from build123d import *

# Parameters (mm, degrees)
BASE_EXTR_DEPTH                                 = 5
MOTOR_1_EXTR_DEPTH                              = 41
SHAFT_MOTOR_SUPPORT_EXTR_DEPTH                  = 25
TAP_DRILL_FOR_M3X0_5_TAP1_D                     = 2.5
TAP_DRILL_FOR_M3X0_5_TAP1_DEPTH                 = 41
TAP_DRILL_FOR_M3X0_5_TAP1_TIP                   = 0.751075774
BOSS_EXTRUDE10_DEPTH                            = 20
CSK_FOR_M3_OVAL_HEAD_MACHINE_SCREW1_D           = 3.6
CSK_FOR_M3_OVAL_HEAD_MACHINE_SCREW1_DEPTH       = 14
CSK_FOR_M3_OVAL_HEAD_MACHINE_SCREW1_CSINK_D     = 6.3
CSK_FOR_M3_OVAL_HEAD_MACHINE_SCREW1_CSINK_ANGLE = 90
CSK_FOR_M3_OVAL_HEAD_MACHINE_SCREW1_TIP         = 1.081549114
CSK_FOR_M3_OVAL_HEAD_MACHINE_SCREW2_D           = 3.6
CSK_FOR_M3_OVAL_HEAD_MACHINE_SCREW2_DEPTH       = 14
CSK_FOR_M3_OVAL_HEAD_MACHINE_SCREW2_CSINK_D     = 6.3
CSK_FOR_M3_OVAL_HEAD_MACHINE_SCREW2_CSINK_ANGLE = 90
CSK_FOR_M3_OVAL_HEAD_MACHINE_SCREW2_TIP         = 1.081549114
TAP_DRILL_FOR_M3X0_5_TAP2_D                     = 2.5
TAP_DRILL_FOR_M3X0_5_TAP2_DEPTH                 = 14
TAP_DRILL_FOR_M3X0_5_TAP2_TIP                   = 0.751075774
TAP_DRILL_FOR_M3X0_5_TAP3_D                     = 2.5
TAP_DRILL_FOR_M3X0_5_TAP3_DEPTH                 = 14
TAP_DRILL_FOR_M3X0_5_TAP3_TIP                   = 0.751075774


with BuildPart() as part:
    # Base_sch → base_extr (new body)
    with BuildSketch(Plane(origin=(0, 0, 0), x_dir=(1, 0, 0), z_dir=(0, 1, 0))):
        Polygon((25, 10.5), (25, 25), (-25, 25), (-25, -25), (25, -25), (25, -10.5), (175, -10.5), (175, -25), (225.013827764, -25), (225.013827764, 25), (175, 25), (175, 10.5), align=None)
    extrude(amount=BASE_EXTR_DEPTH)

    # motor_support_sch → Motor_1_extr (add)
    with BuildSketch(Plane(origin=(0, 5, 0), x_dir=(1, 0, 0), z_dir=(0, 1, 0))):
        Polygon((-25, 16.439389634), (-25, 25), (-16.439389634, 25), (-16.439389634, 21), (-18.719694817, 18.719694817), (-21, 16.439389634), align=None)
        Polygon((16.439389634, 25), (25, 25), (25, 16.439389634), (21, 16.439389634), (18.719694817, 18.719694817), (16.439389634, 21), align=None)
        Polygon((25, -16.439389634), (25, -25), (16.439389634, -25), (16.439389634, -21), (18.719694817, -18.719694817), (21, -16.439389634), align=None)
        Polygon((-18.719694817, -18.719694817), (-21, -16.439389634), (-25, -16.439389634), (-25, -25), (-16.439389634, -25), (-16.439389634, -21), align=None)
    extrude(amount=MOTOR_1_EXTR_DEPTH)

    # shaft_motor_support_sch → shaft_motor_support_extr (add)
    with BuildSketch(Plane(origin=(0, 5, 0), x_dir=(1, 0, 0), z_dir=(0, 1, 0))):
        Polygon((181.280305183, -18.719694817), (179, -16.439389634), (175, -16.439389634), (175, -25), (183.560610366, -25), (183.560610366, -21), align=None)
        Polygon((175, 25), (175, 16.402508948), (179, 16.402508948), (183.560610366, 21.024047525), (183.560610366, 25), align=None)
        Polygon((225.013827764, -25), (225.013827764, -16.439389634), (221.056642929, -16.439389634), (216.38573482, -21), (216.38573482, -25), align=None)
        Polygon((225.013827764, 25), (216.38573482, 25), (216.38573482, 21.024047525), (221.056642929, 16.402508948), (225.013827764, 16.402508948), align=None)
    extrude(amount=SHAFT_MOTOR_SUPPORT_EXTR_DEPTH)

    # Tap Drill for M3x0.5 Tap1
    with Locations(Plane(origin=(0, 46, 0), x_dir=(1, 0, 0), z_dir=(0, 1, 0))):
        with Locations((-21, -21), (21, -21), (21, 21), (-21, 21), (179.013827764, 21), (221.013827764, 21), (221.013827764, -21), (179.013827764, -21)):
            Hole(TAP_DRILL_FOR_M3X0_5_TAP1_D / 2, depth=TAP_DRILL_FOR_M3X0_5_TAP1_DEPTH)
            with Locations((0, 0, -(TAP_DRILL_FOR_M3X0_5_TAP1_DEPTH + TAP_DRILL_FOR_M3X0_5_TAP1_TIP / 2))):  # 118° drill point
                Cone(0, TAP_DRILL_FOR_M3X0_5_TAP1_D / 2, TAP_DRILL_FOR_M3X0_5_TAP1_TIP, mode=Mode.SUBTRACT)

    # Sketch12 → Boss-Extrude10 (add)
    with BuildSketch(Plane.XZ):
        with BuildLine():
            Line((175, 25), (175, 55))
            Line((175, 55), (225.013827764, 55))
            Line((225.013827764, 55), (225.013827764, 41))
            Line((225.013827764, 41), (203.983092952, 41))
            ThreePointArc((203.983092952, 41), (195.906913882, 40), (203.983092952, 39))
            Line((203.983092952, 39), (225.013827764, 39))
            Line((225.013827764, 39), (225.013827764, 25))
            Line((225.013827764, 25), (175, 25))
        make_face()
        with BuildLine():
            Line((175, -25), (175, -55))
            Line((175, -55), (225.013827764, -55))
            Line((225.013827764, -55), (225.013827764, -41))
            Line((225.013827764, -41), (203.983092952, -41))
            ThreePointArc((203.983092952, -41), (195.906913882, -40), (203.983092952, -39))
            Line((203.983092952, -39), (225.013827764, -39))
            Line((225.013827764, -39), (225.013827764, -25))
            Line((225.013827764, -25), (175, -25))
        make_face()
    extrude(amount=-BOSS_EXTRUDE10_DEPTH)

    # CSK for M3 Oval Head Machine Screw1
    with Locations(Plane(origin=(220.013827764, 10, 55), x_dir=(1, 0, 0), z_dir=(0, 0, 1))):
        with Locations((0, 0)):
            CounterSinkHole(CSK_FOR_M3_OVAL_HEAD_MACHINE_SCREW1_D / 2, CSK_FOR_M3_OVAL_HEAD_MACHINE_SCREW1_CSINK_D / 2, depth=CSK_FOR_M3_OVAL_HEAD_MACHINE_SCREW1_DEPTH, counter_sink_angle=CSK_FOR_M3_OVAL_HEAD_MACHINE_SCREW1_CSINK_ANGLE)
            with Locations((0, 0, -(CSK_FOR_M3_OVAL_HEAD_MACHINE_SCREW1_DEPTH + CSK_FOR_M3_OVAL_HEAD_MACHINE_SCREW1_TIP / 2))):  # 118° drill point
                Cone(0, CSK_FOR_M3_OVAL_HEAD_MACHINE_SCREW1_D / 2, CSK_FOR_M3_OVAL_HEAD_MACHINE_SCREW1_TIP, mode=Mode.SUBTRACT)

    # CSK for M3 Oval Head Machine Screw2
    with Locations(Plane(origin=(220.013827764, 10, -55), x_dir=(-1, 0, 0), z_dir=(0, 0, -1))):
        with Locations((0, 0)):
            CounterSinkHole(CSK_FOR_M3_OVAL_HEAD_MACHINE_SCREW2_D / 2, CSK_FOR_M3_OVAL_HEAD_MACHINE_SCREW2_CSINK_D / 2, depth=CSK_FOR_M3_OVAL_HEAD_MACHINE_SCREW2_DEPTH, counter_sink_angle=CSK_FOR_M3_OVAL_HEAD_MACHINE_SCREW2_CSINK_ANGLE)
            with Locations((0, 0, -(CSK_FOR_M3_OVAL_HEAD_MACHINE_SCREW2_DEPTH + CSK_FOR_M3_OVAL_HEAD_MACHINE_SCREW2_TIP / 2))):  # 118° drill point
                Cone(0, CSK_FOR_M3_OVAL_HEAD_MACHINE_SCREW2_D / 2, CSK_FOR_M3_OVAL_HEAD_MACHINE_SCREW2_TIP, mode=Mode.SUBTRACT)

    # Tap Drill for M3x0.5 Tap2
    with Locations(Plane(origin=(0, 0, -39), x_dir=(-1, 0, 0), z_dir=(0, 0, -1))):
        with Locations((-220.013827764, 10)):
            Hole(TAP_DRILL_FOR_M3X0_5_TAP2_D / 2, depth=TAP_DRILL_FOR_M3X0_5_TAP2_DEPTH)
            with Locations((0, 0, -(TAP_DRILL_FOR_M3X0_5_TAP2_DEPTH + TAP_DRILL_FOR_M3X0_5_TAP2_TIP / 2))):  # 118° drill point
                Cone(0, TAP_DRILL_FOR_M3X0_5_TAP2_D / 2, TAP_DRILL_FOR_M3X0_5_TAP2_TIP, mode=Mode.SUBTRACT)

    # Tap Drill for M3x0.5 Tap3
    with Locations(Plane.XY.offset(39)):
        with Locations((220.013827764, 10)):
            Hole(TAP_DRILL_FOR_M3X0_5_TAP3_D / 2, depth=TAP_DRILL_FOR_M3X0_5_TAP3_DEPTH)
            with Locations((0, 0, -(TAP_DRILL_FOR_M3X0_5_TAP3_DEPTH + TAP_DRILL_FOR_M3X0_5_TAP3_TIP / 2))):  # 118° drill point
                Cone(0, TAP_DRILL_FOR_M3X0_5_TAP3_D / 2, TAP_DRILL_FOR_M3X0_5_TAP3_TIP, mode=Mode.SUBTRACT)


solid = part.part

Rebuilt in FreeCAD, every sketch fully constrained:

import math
import FreeCAD as App
import Part
import Sketcher

V = App.Vector
Q = App.Units.Quantity


def add_polygon(sketch, points):
    """Adds a closed chain of lines whose ends are joined by coincident constraints."""
    first, n = sketch.GeometryCount, len(points)
    for a, b in zip(points, points[1:] + points[:1]):
        sketch.addGeometry(Part.LineSegment(App.Vector(*a, 0), App.Vector(*b, 0)), False)
    for i in range(n):
        sketch.addConstraint(Sketcher.Constraint("Coincident", first + i, 2, first + (i + 1) % n, 1))

doc = App.newDocument("Part")
body = doc.addObject("PartDesign::Body", "Body")

# Sketch on XZ plane
sketch1 = body.newObject("Sketcher::SketchObject", "Sketch")
sketch1.AttachmentSupport = (doc.getObject("XZ_Plane"), [""])
sketch1.MapMode = "FlatFace"
add_polygon(sketch1, [(25, -10), (25, -25), (-25, -25), (-25, 25), (25, 25), (25, 10), (175, 10), (175, 25), (225, 25), (225, -25), (175, -25), (175, -10)])  # lines 0-11
sketch1.addConstraint([
    Sketcher.Constraint("Vertical", 0),
    Sketcher.Constraint("Horizontal", 1),
    Sketcher.Constraint("Vertical", 2),
    Sketcher.Constraint("Horizontal", 3),
    Sketcher.Constraint("Vertical", 4),
    Sketcher.Constraint("Horizontal", 5),
    Sketcher.Constraint("Vertical", 6),
    Sketcher.Constraint("Horizontal", 7),
    Sketcher.Constraint("Vertical", 8),
    Sketcher.Constraint("Horizontal", 9),
    Sketcher.Constraint("Vertical", 10),
    Sketcher.Constraint("Horizontal", 11),
    Sketcher.Constraint("Symmetric", 0, 2, 2, 2, -1, 1),
    Sketcher.Constraint("Symmetric", 6, 2, 9, 2, -1),
    Sketcher.Constraint("Symmetric", 4, 2, 11, 2, -1),
    Sketcher.Constraint("Horizontal", 3, 2, 6, 2),
    Sketcher.Constraint("Equal", 3, 2),
    Sketcher.Constraint("DistanceX", 1, 2, 1, 1, Q("50 mm")),
    Sketcher.Constraint("DistanceX", 5, 1, 5, 2, Q("150 mm")),
    Sketcher.Constraint("DistanceY", 0, 2, 0, 1, Q("14.5 mm")),
    Sketcher.Constraint("DistanceX", 7, 1, 7, 2, Q("50.013828 mm")),
])
pad1 = body.newObject("PartDesign::Pad", "Pad")
pad1.Profile = sketch1
pad1.Length = 5
pad1.Reversed = True

# Sketch on XZ plane
sketch2 = body.newObject("Sketcher::SketchObject", "Sketch001")
sketch2.AttachmentSupport = (doc.getObject("XZ_Plane"), [""])
sketch2.MapMode = "FlatFace"
sketch2.AttachmentOffset = App.Placement(V(0, 0, -5), App.Rotation())
add_polygon(sketch2, [(-25, -25), (-25, -16.4), (-21, -16.4), (-16.4, -21), (-16.4, -25)])  # lines 0-4
add_polygon(sketch2, [(25, -25), (16.4, -25), (16.4, -21), (21, -16.4), (25, -16.4)])  # lines 5-9
add_polygon(sketch2, [(25, 25), (25, 16.4), (21, 16.4), (16.4, 21), (16.4, 25)])  # lines 10-14
add_polygon(sketch2, [(-21, 16.4), (-25, 16.4), (-25, 25), (-16.4, 25), (-16.4, 21)])  # lines 15-19
sketch2.addConstraint([
    Sketcher.Constraint("Vertical", 0),
    Sketcher.Constraint("Horizontal", 1),
    Sketcher.Constraint("Vertical", 3),
    Sketcher.Constraint("Horizontal", 4),
    Sketcher.Constraint("Horizontal", 5),
    Sketcher.Constraint("Vertical", 6),
    Sketcher.Constraint("Horizontal", 8),
    Sketcher.Constraint("Vertical", 9),
    Sketcher.Constraint("Vertical", 10),
    Sketcher.Constraint("Horizontal", 11),
    Sketcher.Constraint("Vertical", 13),
    Sketcher.Constraint("Horizontal", 14),
    Sketcher.Constraint("Horizontal", 15),
    Sketcher.Constraint("Vertical", 16),
    Sketcher.Constraint("Horizontal", 17),
    Sketcher.Constraint("Vertical", 18),
    Sketcher.Constraint("Symmetric", 0, 2, 10, 2, -1, 1),
    Sketcher.Constraint("Symmetric", 2, 2, 12, 2, -1, 1),
    Sketcher.Constraint("Symmetric", 8, 2, 15, 2, -1, 1),
    Sketcher.Constraint("Symmetric", 5, 2, 17, 2, -1, 1),
    Sketcher.Constraint("Symmetric", 3, 2, 5, 2, -2),
    Sketcher.Constraint("Symmetric", 1, 2, 7, 2, -2),
    Sketcher.Constraint("Symmetric", 14, 2, 16, 2, -2),
    Sketcher.Constraint("Perpendicular", 2, 7),
    Sketcher.Constraint("Perpendicular", 7, 12),
    Sketcher.Constraint("Perpendicular", 12, 19),
    Sketcher.Constraint("Horizontal", 2, 2, 6, 2),
    Sketcher.Constraint("Horizontal", 12, 2, 18, 2),
    Sketcher.Constraint("Equal", 17, 0),
    Sketcher.Constraint("DistanceX", 1, 1, 1, 2, Q("4 mm")),
    Sketcher.Constraint("DistanceX", 0, 2, -1, 1, Q("25 mm")),
    Sketcher.Constraint("DistanceY", 2, 2, -1, 1, Q("21 mm")),
    Sketcher.Constraint("DistanceX", 4, 2, 4, 1, Q("8.56061 mm")),
])
pad2 = body.newObject("PartDesign::Pad", "Pad001")
pad2.Profile = sketch2
pad2.Length = 41
pad2.Reversed = True

# Sketch on XZ plane
sketch3 = body.newObject("Sketcher::SketchObject", "Sketch002")
sketch3.AttachmentSupport = (doc.getObject("XZ_Plane"), [""])
sketch3.MapMode = "FlatFace"
sketch3.AttachmentOffset = App.Placement(V(0, 0, -5), App.Rotation())
add_polygon(sketch3, [(179, 16.4), (175, 16.4), (175, 25), (183.6, 25), (183.6, 21)])  # lines 0-4
add_polygon(sketch3, [(175, -25), (175, -16.4), (179, -16.4), (183.6, -21), (183.6, -25)])  # lines 5-9
add_polygon(sketch3, [(225, 25), (225, 16.4), (221.1, 16.4), (216.4, 21), (216.4, 25)])  # lines 10-14
add_polygon(sketch3, [(225, -25), (216.4, -25), (216.4, -21), (221.1, -16.4), (225, -16.4)])  # lines 15-19
sketch3.addConstraint([
    Sketcher.Constraint("Horizontal", 0),
    Sketcher.Constraint("Vertical", 1),
    Sketcher.Constraint("Horizontal", 2),
    Sketcher.Constraint("Vertical", 3),
    Sketcher.Constraint("Vertical", 5),
    Sketcher.Constraint("Horizontal", 6),
    Sketcher.Constraint("Vertical", 8),
    Sketcher.Constraint("Horizontal", 9),
    Sketcher.Constraint("Vertical", 10),
    Sketcher.Constraint("Horizontal", 11),
    Sketcher.Constraint("Vertical", 13),
    Sketcher.Constraint("Horizontal", 14),
    Sketcher.Constraint("Horizontal", 15),
    Sketcher.Constraint("Vertical", 16),
    Sketcher.Constraint("Horizontal", 18),
    Sketcher.Constraint("Vertical", 19),
    Sketcher.Constraint("Symmetric", 2, 2, 8, 2, -1),
    Sketcher.Constraint("Symmetric", 13, 2, 15, 2, -1),
    Sketcher.Constraint("Horizontal", 4, 2, 10, 2),
    Sketcher.Constraint("Horizontal", 3, 2, 12, 2),
    Sketcher.Constraint("Horizontal", 2, 2, 13, 2),
    Sketcher.Constraint("Horizontal", 7, 2, 16, 2),
    Sketcher.Constraint("Horizontal", 6, 2, 17, 2),
    Sketcher.Constraint("Vertical", 1, 2, 5, 2),
    Sketcher.Constraint("Vertical", 4, 2, 6, 2),
    Sketcher.Constraint("Vertical", 11, 2, 17, 2),
    Sketcher.Constraint("Vertical", 14, 2, 18, 2),
    Sketcher.Constraint("Equal", 9, 1),
    Sketcher.Constraint("Equal", 6, 3),
    Sketcher.Constraint("DistanceX", 0, 2, 0, 1, Q("4 mm")),
    Sketcher.Constraint("DistanceX", -1, 1, 0, 2, Q("175 mm")),
    Sketcher.Constraint("DistanceY", -1, 1, 1, 2, Q("25 mm")),
    Sketcher.Constraint("DistanceX", 2, 1, 2, 2, Q("8.56061 mm")),
    Sketcher.Constraint("DistanceY", 5, 1, 5, 2, Q("8.597491 mm")),
    Sketcher.Constraint("DistanceX", 11, 2, 11, 1, Q("3.957185 mm")),
    Sketcher.Constraint("DistanceX", 14, 1, 14, 2, Q("8.628093 mm")),
    Sketcher.Constraint("DistanceY", 8, 2, 8, 1, Q("3.975952 mm")),
    Sketcher.Constraint("DistanceX", -1, 1, 10, 2, Q("225.013828 mm")),
])
pad3 = body.newObject("PartDesign::Pad", "Pad002")
pad3.Profile = sketch3
pad3.Length = 25
pad3.Reversed = True

# Sketch on XZ plane
sketch4 = body.newObject("Sketcher::SketchObject", "Sketch003")
sketch4.AttachmentSupport = (doc.getObject("XZ_Plane"), [""])
sketch4.MapMode = "FlatFace"
sketch4.AttachmentOffset = App.Placement(V(0, 0, -46), App.Rotation())
sketch4.addGeometry([
    Part.Circle(V(-21, 21, 0), V(0, 0, 1), 1.2),  # 0
    Part.Circle(V(21, 21, 0), V(0, 0, 1), 1.2),  # 1
    Part.Circle(V(21, -21, 0), V(0, 0, 1), 1.2),  # 2
    Part.Circle(V(-21, -21, 0), V(0, 0, 1), 1.2),  # 3
    Part.Circle(V(179, -21, 0), V(0, 0, 1), 1.2),  # 4
    Part.Circle(V(221, -21, 0), V(0, 0, 1), 1.2),  # 5
    Part.Circle(V(221, 21, 0), V(0, 0, 1), 1.2),  # 6
    Part.Circle(V(179, 21, 0), V(0, 0, 1), 1.2),  # 7
], False)
sketch4.addConstraint([
    Sketcher.Constraint("Equal", 0, 1),
    Sketcher.Constraint("Equal", 1, 2),
    Sketcher.Constraint("Equal", 2, 3),
    Sketcher.Constraint("Equal", 3, 4),
    Sketcher.Constraint("Equal", 4, 5),
    Sketcher.Constraint("Equal", 5, 6),
    Sketcher.Constraint("Equal", 6, 7),
    Sketcher.Constraint("Symmetric", 0, 3, 2, 3, -1, 1),
    Sketcher.Constraint("Symmetric", 1, 3, 3, 3, -1, 1),
    Sketcher.Constraint("Symmetric", 0, 3, 1, 3, -2),
    Sketcher.Constraint("Symmetric", 5, 3, 6, 3, -1),
    Sketcher.Constraint("Symmetric", 4, 3, 7, 3, -1),
    Sketcher.Constraint("Horizontal", 3, 3, 4, 3),
    Sketcher.Constraint("Horizontal", 4, 3, 5, 3),
    Sketcher.Constraint("Diameter", 0, Q("2.5 mm")),
    Sketcher.Constraint("DistanceX", 0, 3, -1, 1, Q("21 mm")),
    Sketcher.Constraint("DistanceY", -1, 1, 0, 3, Q("21 mm")),
    Sketcher.Constraint("DistanceX", 4, 3, 5, 3, Q("42 mm")),
    Sketcher.Constraint("DistanceX", -1, 1, 4, 3, Q("179.013828 mm")),
])
doc.recompute()
hole = body.newObject("PartDesign::Hole", "Hole")
hole.Profile = sketch4
hole.ThreadType = "None"
hole.Diameter = 2.5
hole.DepthType = "Dimension"
hole.Depth = 41
hole.DrillPoint = "Angled"
hole.DrillPointAngle = 118
hole.Reversed = True

# Sketch on XZ plane
sketch5 = body.newObject("Sketcher::SketchObject", "Sketch004")
sketch5.AttachmentSupport = (doc.getObject("XZ_Plane"), [""])
sketch5.MapMode = "FlatFace"
sketch5.addGeometry([
    Part.LineSegment(V(175, 55, 0), V(175, 25, 0)),  # 0
    Part.LineSegment(V(175, 25, 0), V(225, 25, 0)),  # 1
    Part.LineSegment(V(225, 25, 0), V(225, 39, 0)),  # 2
    Part.LineSegment(V(225, 39, 0), V(204, 39, 0)),  # 3
    Part.ArcOfCircle(Part.Circle(V(200, 40, 0), V(0, 0, 1), 4.1), math.radians(14), math.radians(346)),  # 4
    Part.LineSegment(V(204, 41, 0), V(225, 41, 0)),  # 5
    Part.LineSegment(V(225, 41, 0), V(225, 55, 0)),  # 6
    Part.LineSegment(V(225, 55, 0), V(175, 55, 0)),  # 7
    Part.LineSegment(V(175, -25, 0), V(175, -55, 0)),  # 8
    Part.LineSegment(V(175, -55, 0), V(225, -55, 0)),  # 9
    Part.LineSegment(V(225, -55, 0), V(225, -41, 0)),  # 10
    Part.LineSegment(V(225, -41, 0), V(204, -41, 0)),  # 11
    Part.ArcOfCircle(Part.Circle(V(200, -40, 0), V(0, 0, 1), 4.1), math.radians(14), math.radians(346)),  # 12
    Part.LineSegment(V(204, -39, 0), V(225, -39, 0)),  # 13
    Part.LineSegment(V(225, -39, 0), V(225, -25, 0)),  # 14
    Part.LineSegment(V(225, -25, 0), V(175, -25, 0)),  # 15
], False)
sketch5.addConstraint([
    Sketcher.Constraint("Coincident", 0, 2, 1, 1),
    Sketcher.Constraint("Coincident", 1, 2, 2, 1),
    Sketcher.Constraint("Coincident", 2, 2, 3, 1),
    Sketcher.Constraint("Coincident", 3, 2, 4, 2),
    Sketcher.Constraint("Coincident", 4, 1, 5, 1),
    Sketcher.Constraint("Coincident", 5, 2, 6, 1),
    Sketcher.Constraint("Coincident", 6, 2, 7, 1),
    Sketcher.Constraint("Coincident", 7, 2, 0, 1),
    Sketcher.Constraint("Coincident", 8, 2, 9, 1),
    Sketcher.Constraint("Coincident", 9, 2, 10, 1),
    Sketcher.Constraint("Coincident", 10, 2, 11, 1),
    Sketcher.Constraint("Coincident", 11, 2, 12, 2),
    Sketcher.Constraint("Coincident", 12, 1, 13, 1),
    Sketcher.Constraint("Coincident", 13, 2, 14, 1),
    Sketcher.Constraint("Coincident", 14, 2, 15, 1),
    Sketcher.Constraint("Coincident", 15, 2, 8, 1),
    Sketcher.Constraint("Vertical", 0),
    Sketcher.Constraint("Horizontal", 1),
    Sketcher.Constraint("Vertical", 2),
    Sketcher.Constraint("Horizontal", 3),
    Sketcher.Constraint("Horizontal", 5),
    Sketcher.Constraint("Vertical", 6),
    Sketcher.Constraint("Horizontal", 7),
    Sketcher.Constraint("Vertical", 8),
    Sketcher.Constraint("Horizontal", 9),
    Sketcher.Constraint("Vertical", 10),
    Sketcher.Constraint("Horizontal", 11),
    Sketcher.Constraint("Horizontal", 13),
    Sketcher.Constraint("Vertical", 14),
    Sketcher.Constraint("Horizontal", 15),
    Sketcher.Constraint("Equal", 4, 12),
    Sketcher.Constraint("Symmetric", 4, 3, 12, 3, -1),
    Sketcher.Constraint("Symmetric", 7, 2, 8, 2, -1),
    Sketcher.Constraint("Symmetric", 5, 2, 10, 2, -1),
    Sketcher.Constraint("Symmetric", 2, 2, 13, 2, -1),
    Sketcher.Constraint("Vertical", 3, 2, 4, 1),
    Sketcher.Constraint("Vertical", 2, 2, 5, 2),
    Sketcher.Constraint("Equal", 2, 6),
    Sketcher.Constraint("Equal", 0, 8),
    Sketcher.Constraint("Radius", 4, Q("4.1 mm")),
    Sketcher.Constraint("DistanceY", 0, 2, 0, 1, Q("30 mm")),
    Sketcher.Constraint("DistanceY", 2, 1, 2, 2, Q("14 mm")),
    Sketcher.Constraint("DistanceY", -1, 1, 4, 3, Q("40 mm")),
    Sketcher.Constraint("DistanceX", -1, 1, 0, 2, Q("175 mm")),
    Sketcher.Constraint("DistanceX", 1, 1, 1, 2, Q("50.013828 mm")),
    Sketcher.Constraint("DistanceX", 3, 2, 3, 1, Q("21.030735 mm")),
])
pad4 = body.newObject("PartDesign::Pad", "Pad003")
pad4.Profile = sketch5
pad4.Length = 20
pad4.Reversed = True

# Sketch on XY plane
sketch6 = body.newObject("Sketcher::SketchObject", "Sketch005")
sketch6.AttachmentSupport = (doc.getObject("XY_Plane"), [""])
sketch6.MapMode = "FlatFace"
sketch6.AttachmentOffset = App.Placement(V(0, 0, 55), App.Rotation())
sketch6.addGeometry(Part.Circle(V(220, 10, 0), V(0, 0, 1), 1.8), False)
sketch6.addConstraint([
    Sketcher.Constraint("Diameter", 0, Q("3.6 mm")),
    Sketcher.Constraint("DistanceY", -1, 1, 0, 3, Q("10 mm")),
    Sketcher.Constraint("DistanceX", -1, 1, 0, 3, Q("220.013828 mm")),
])
doc.recompute()
hole2 = body.newObject("PartDesign::Hole", "Hole001")
hole2.Profile = sketch6
hole2.ThreadType = "None"
hole2.Diameter = 3.6
hole2.DepthType = "Dimension"
hole2.Depth = 14
hole2.DrillPoint = "Angled"
hole2.DrillPointAngle = 118
hole2.HoleCutType = "Countersink"
hole2.HoleCutDiameter = 6.3
hole2.HoleCutCountersinkAngle = 90

# Sketch on XY plane
sketch7 = body.newObject("Sketcher::SketchObject", "Sketch006")
sketch7.AttachmentSupport = (doc.getObject("XY_Plane"), [""])
sketch7.MapMode = "FlatFace"
sketch7.AttachmentOffset = App.Placement(V(0, 0, -55), App.Rotation())
sketch7.addGeometry(Part.Circle(V(220, 10, 0), V(0, 0, 1), 1.8), False)
sketch7.addConstraint([
    Sketcher.Constraint("Diameter", 0, Q("3.6 mm")),
    Sketcher.Constraint("DistanceY", -1, 1, 0, 3, Q("10 mm")),
    Sketcher.Constraint("DistanceX", -1, 1, 0, 3, Q("220.013828 mm")),
])
doc.recompute()
hole3 = body.newObject("PartDesign::Hole", "Hole002")
hole3.Profile = sketch7
hole3.ThreadType = "None"
hole3.Diameter = 3.6
hole3.DepthType = "Dimension"
hole3.Depth = 14
hole3.DrillPoint = "Angled"
hole3.DrillPointAngle = 118
hole3.HoleCutType = "Countersink"
hole3.HoleCutDiameter = 6.3
hole3.HoleCutCountersinkAngle = 90
hole3.Reversed = True

# Sketch on XY plane
sketch8 = body.newObject("Sketcher::SketchObject", "Sketch007")
sketch8.AttachmentSupport = (doc.getObject("XY_Plane"), [""])
sketch8.MapMode = "FlatFace"
sketch8.AttachmentOffset = App.Placement(V(0, 0, -39), App.Rotation())
sketch8.addGeometry(Part.Circle(V(220, 10, 0), V(0, 0, 1), 1.2), False)
sketch8.addConstraint([
    Sketcher.Constraint("Diameter", 0, Q("2.5 mm")),
    Sketcher.Constraint("DistanceY", -1, 1, 0, 3, Q("10 mm")),
    Sketcher.Constraint("DistanceX", -1, 1, 0, 3, Q("220.013828 mm")),
])
doc.recompute()
hole4 = body.newObject("PartDesign::Hole", "Hole003")
hole4.Profile = sketch8
hole4.ThreadType = "None"
hole4.Diameter = 2.5
hole4.DepthType = "Dimension"
hole4.Depth = 14
hole4.DrillPoint = "Angled"
hole4.DrillPointAngle = 118
hole4.Reversed = True

# Sketch on XY plane
sketch9 = body.newObject("Sketcher::SketchObject", "Sketch008")
sketch9.AttachmentSupport = (doc.getObject("XY_Plane"), [""])
sketch9.MapMode = "FlatFace"
sketch9.AttachmentOffset = App.Placement(V(0, 0, 39), App.Rotation())
sketch9.addGeometry(Part.Circle(V(220, 10, 0), V(0, 0, 1), 1.2), False)
sketch9.addConstraint([
    Sketcher.Constraint("Diameter", 0, Q("2.5 mm")),
    Sketcher.Constraint("DistanceY", -1, 1, 0, 3, Q("10 mm")),
    Sketcher.Constraint("DistanceX", -1, 1, 0, 3, Q("220.013828 mm")),
])
doc.recompute()
hole5 = body.newObject("PartDesign::Hole", "Hole004")
hole5.Profile = sketch9
hole5.ThreadType = "None"
hole5.Diameter = 2.5
hole5.DepthType = "Dimension"
hole5.Depth = 14
hole5.DrillPoint = "Angled"
hole5.DrillPointAngle = 118

doc.recompute()
